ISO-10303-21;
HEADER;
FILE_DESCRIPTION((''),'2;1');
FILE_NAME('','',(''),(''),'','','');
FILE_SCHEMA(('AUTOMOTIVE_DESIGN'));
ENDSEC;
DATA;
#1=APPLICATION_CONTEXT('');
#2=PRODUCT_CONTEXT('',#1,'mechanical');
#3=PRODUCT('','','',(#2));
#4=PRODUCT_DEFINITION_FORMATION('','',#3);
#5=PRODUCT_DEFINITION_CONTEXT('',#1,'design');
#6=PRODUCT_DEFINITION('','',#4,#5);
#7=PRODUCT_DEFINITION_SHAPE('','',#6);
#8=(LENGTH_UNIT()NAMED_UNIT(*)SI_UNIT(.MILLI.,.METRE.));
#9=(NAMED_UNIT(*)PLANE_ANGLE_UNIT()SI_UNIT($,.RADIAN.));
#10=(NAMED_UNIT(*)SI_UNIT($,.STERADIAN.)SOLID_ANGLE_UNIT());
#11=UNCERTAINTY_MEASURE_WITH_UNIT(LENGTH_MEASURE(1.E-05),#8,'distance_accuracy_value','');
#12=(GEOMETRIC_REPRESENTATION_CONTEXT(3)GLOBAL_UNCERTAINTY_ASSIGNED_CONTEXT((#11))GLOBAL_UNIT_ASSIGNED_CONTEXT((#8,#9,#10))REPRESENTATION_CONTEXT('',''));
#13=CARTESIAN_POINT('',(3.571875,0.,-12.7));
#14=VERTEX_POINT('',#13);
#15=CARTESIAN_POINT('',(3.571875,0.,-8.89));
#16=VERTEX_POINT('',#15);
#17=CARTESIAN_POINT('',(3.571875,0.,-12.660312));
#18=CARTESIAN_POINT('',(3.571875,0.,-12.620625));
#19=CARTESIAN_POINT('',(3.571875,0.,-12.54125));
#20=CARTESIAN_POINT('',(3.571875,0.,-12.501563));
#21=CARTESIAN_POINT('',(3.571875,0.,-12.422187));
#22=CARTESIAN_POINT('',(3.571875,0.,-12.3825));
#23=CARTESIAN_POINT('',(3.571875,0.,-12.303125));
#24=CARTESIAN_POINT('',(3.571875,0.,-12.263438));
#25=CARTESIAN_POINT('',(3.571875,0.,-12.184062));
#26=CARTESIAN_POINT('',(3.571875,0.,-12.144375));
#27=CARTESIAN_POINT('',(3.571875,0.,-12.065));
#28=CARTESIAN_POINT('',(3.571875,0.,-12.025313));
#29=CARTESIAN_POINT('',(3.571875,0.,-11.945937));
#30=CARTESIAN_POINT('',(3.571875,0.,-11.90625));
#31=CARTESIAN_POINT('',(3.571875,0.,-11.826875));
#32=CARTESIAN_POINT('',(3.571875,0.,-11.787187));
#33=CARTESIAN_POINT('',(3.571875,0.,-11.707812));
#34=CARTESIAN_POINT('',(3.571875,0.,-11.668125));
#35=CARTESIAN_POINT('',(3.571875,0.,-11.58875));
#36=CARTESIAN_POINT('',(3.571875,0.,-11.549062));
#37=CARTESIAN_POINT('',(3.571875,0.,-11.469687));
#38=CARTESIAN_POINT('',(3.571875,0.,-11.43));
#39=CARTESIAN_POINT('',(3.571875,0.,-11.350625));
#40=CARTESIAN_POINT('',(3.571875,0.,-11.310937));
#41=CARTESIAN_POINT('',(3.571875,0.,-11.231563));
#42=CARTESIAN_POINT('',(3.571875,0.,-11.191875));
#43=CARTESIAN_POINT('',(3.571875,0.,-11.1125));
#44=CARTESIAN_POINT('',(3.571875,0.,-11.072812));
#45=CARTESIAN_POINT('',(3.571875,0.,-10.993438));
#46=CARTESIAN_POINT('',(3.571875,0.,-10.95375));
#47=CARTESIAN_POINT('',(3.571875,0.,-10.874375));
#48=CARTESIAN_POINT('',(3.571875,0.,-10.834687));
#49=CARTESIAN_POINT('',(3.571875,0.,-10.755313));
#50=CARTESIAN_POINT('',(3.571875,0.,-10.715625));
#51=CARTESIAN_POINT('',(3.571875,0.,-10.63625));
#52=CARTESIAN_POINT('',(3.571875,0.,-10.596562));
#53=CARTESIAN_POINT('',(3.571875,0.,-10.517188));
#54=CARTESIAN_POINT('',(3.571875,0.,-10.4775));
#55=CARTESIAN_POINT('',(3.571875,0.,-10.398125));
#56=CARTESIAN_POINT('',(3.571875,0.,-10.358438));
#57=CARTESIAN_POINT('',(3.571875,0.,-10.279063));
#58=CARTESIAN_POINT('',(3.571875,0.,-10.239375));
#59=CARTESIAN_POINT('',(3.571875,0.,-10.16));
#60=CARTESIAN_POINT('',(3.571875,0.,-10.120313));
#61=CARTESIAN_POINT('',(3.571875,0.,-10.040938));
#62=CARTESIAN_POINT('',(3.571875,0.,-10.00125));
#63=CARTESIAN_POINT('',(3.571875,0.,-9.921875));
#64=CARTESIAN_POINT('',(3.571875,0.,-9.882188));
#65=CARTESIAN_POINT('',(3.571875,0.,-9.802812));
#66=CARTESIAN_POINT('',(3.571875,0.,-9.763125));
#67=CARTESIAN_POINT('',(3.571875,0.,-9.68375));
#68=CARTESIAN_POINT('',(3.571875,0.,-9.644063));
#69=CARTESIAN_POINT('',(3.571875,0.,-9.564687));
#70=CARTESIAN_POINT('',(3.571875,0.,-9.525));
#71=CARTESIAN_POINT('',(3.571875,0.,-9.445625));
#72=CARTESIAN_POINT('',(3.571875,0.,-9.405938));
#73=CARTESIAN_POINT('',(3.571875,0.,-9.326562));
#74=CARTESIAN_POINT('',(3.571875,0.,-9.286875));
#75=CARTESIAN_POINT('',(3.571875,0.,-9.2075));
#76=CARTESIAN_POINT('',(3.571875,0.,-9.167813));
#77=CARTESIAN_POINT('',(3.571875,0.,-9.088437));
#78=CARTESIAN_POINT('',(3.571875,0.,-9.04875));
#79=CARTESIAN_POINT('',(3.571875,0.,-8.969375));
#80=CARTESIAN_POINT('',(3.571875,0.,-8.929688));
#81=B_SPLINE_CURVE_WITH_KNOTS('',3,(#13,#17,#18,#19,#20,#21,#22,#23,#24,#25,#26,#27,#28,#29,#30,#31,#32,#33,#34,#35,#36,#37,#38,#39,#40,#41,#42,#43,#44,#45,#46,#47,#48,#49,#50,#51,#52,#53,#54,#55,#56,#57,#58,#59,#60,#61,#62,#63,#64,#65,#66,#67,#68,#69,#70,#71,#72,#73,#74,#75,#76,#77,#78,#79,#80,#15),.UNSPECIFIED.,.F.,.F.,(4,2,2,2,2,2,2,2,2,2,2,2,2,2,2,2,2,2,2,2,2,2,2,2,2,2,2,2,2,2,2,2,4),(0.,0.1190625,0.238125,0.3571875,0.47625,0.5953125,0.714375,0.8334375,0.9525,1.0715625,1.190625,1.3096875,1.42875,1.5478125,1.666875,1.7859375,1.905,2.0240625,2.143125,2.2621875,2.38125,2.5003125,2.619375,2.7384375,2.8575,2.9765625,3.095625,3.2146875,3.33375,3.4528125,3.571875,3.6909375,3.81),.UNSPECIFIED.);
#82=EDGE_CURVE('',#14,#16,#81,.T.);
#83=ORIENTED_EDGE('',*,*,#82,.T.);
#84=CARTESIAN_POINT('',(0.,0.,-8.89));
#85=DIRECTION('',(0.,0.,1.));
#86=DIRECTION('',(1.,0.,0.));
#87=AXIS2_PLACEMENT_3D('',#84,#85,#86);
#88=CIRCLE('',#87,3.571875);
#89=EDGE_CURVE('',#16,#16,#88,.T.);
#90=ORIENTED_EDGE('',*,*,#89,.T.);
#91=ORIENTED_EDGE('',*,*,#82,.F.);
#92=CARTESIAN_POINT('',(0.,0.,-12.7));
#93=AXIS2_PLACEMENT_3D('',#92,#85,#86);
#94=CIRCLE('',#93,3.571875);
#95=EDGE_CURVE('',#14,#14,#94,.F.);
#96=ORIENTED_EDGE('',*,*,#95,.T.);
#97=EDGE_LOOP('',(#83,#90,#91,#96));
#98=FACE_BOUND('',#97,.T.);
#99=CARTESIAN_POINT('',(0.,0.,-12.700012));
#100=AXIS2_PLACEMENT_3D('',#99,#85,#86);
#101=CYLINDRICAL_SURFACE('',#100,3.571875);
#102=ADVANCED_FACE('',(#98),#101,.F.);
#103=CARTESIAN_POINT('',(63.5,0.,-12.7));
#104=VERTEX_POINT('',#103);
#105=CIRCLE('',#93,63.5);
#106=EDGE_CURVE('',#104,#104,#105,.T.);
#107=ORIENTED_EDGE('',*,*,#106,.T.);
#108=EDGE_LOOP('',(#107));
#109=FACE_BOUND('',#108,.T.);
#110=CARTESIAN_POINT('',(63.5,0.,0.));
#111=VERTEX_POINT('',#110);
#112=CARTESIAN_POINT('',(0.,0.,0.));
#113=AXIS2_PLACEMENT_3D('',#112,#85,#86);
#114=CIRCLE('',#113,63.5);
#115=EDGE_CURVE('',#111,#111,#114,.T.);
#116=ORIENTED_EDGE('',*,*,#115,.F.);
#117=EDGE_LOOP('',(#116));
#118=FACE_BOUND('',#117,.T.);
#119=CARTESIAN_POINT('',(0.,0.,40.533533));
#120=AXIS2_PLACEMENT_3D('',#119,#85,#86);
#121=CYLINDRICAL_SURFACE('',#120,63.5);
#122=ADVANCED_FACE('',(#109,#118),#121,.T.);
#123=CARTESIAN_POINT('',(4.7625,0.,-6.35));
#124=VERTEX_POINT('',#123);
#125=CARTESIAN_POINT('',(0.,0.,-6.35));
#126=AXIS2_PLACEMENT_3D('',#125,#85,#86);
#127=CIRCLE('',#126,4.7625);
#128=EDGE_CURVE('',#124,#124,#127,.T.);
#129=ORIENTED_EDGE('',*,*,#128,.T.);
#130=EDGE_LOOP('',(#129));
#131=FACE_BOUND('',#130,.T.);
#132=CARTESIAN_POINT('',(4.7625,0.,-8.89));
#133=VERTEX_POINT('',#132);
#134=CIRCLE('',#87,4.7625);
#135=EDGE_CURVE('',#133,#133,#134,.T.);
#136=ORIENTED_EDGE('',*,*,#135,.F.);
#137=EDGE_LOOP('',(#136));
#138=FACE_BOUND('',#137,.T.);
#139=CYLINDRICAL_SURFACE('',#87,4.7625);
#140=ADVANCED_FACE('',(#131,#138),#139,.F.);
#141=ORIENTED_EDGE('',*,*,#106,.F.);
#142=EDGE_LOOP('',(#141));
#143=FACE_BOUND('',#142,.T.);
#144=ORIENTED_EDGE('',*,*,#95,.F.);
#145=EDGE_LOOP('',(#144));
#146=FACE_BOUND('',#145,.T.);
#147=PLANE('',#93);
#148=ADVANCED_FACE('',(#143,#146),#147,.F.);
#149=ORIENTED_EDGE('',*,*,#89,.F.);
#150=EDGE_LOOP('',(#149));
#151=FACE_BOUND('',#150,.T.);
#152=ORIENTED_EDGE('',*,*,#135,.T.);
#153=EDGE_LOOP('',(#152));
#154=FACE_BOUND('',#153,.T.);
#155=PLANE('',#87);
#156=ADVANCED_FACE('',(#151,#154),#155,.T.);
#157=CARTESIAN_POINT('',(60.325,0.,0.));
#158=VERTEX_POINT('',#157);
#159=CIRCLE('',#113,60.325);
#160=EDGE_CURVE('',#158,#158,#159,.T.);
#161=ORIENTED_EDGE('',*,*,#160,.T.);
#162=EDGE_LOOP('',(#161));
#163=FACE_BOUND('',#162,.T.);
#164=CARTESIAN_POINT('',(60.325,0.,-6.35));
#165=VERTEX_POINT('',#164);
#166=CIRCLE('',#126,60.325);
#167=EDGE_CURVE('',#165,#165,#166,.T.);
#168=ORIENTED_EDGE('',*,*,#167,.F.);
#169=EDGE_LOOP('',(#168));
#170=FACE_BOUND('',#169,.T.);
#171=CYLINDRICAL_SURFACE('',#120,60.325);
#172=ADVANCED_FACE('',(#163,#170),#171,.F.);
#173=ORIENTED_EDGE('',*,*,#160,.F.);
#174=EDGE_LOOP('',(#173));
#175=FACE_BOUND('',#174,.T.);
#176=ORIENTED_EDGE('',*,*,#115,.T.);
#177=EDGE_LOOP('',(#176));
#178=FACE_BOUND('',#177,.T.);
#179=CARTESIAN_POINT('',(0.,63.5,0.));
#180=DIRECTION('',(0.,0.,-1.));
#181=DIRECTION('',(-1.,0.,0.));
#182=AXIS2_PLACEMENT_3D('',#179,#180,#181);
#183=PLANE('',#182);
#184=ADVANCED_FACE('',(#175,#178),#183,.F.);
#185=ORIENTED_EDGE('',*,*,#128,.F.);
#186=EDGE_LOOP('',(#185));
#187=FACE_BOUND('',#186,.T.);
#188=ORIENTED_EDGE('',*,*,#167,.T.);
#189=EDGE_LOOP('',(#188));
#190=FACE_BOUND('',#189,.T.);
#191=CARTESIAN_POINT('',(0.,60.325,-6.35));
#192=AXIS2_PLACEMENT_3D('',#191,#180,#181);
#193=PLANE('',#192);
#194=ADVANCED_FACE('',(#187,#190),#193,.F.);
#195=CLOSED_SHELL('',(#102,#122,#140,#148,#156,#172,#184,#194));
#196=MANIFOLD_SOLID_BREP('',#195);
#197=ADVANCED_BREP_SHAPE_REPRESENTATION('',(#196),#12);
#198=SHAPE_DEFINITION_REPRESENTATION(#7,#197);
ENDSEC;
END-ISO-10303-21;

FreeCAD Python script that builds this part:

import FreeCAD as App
import Part
import Sketcher
from FreeCAD import Vector
Q = App.Units.Quantity

doc = App.newDocument("Part")
body = doc.addObject("PartDesign::Body", "Body")

# Sketch on YZ plane
sketch1 = body.newObject("Sketcher::SketchObject", "Sketch")
sketch1.AttachmentSupport = (doc.getObject("YZ_Plane"), [""])
sketch1.MapMode = "FlatFace"
sketch1.addGeometry(Part.LineSegment(Vector(63.5, 0, 0), Vector(60.3, 0, 0)), False)
sketch1.addGeometry(Part.LineSegment(Vector(60.3, 0, 0), Vector(60.3, -6.3, 0)), False)
sketch1.addGeometry(Part.LineSegment(Vector(60.3, -6.3, 0), Vector(0, -6.3, 0)), False)
sketch1.addGeometry(Part.LineSegment(Vector(0, -6.3, 0), Vector(0, -12.7, 0)), False)
sketch1.addGeometry(Part.LineSegment(Vector(0, -12.7, 0), Vector(63.5, -12.7, 0)), False)
sketch1.addGeometry(Part.LineSegment(Vector(63.5, -12.7, 0), Vector(63.5, 0, 0)), False)
sketch1.addConstraint(Sketcher.Constraint("Coincident", 0, 2, 1, 1))
sketch1.addConstraint(Sketcher.Constraint("Coincident", 1, 2, 2, 1))
sketch1.addConstraint(Sketcher.Constraint("Coincident", 2, 2, 3, 1))
sketch1.addConstraint(Sketcher.Constraint("Coincident", 3, 2, 4, 1))
sketch1.addConstraint(Sketcher.Constraint("Coincident", 4, 2, 5, 1))
sketch1.addConstraint(Sketcher.Constraint("Coincident", 5, 2, 0, 1))
sketch1.addConstraint(Sketcher.Constraint("Horizontal", 0))
sketch1.addConstraint(Sketcher.Constraint("Vertical", 1))
sketch1.addConstraint(Sketcher.Constraint("Horizontal", 2))
sketch1.addConstraint(Sketcher.Constraint("Vertical", 3))
sketch1.addConstraint(Sketcher.Constraint("Horizontal", 4))
sketch1.addConstraint(Sketcher.Constraint("Vertical", 5))
sketch1.addConstraint(Sketcher.Constraint("PointOnObject", 0, 2, -1))
sketch1.addConstraint(Sketcher.Constraint("PointOnObject", 2, 2, -2))
sketch1.addConstraint(Sketcher.Constraint("Equal", 1, 3))
sketch1.addConstraint(Sketcher.Constraint("DistanceX", 4, 1, 4, 2, Q("2.5 in")))
sketch1.addConstraint(Sketcher.Constraint("DistanceY", 5, 1, 5, 2, Q("0.5 in")))
sketch1.addConstraint(Sketcher.Constraint("DistanceX", 0, 2, 0, 1, Q("0.125 in")))
revolution = body.newObject("PartDesign::Revolution", "Revolution")
revolution.Profile = sketch1
revolution.ReferenceAxis = (sketch1, ["V_Axis"])
revolution.Angle = 360

# Sketch on XY plane
sketch2 = body.newObject("Sketcher::SketchObject", "Sketch001")
sketch2.AttachmentSupport = (doc.getObject("XY_Plane"), [""])
sketch2.MapMode = "FlatFace"
sketch2.AttachmentOffset = App.Placement(Vector(0, 0, -0.5 * 25.4), App.Rotation())
sketch2.addGeometry(Part.Circle(Vector(0, 0, 0), Vector(0, 0, 1), 3.6), False)
sketch2.addConstraint(Sketcher.Constraint("Coincident", 0, 3, -1, 1))
sketch2.addConstraint(Sketcher.Constraint("Diameter", 0, Q("0.28125 in")))
pocket1 = body.newObject("PartDesign::Pocket", "Pocket")
pocket1.Profile = sketch2
pocket1.Type = "UpToFirst"
pocket1.Reversed = True

# Sketch on XY plane
sketch3 = body.newObject("Sketcher::SketchObject", "Sketch002")
sketch3.AttachmentSupport = (doc.getObject("XY_Plane"), [""])
sketch3.MapMode = "FlatFace"
sketch3.AttachmentOffset = App.Placement(Vector(0, 0, -0.5 * 25.4), App.Rotation())
sketch3.addGeometry(Part.Circle(Vector(0, 0, 0), Vector(0, 0, 1), 3.6), False)
sketch3.addConstraint(Sketcher.Constraint("Coincident", 0, 3, -1, 1))
sketch3.addConstraint(Sketcher.Constraint("Diameter", 0, Q("0.28125 in")))
pocket2 = body.newObject("PartDesign::Pocket", "Pocket001")
pocket2.Profile = sketch3
pocket2.Length = 91.696141

# Sketch on XY plane
sketch4 = body.newObject("Sketcher::SketchObject", "Sketch003")
sketch4.AttachmentSupport = (doc.getObject("XY_Plane"), [""])
sketch4.MapMode = "FlatFace"
sketch4.AttachmentOffset = App.Placement(Vector(0, 0, -0.25 * 25.4), App.Rotation())
sketch4.addGeometry(Part.Circle(Vector(0, 0, 0), Vector(0, 0, 1), 4.8), False)
sketch4.addConstraint(Sketcher.Constraint("Coincident", 0, 3, -1, 1))
sketch4.addConstraint(Sketcher.Constraint("Diameter", 0, Q("0.375 in")))
pocket3 = body.newObject("PartDesign::Pocket", "Pocket002")
pocket3.Profile = sketch4
pocket3.Length = Q("0.1 in")

doc.recompute()
